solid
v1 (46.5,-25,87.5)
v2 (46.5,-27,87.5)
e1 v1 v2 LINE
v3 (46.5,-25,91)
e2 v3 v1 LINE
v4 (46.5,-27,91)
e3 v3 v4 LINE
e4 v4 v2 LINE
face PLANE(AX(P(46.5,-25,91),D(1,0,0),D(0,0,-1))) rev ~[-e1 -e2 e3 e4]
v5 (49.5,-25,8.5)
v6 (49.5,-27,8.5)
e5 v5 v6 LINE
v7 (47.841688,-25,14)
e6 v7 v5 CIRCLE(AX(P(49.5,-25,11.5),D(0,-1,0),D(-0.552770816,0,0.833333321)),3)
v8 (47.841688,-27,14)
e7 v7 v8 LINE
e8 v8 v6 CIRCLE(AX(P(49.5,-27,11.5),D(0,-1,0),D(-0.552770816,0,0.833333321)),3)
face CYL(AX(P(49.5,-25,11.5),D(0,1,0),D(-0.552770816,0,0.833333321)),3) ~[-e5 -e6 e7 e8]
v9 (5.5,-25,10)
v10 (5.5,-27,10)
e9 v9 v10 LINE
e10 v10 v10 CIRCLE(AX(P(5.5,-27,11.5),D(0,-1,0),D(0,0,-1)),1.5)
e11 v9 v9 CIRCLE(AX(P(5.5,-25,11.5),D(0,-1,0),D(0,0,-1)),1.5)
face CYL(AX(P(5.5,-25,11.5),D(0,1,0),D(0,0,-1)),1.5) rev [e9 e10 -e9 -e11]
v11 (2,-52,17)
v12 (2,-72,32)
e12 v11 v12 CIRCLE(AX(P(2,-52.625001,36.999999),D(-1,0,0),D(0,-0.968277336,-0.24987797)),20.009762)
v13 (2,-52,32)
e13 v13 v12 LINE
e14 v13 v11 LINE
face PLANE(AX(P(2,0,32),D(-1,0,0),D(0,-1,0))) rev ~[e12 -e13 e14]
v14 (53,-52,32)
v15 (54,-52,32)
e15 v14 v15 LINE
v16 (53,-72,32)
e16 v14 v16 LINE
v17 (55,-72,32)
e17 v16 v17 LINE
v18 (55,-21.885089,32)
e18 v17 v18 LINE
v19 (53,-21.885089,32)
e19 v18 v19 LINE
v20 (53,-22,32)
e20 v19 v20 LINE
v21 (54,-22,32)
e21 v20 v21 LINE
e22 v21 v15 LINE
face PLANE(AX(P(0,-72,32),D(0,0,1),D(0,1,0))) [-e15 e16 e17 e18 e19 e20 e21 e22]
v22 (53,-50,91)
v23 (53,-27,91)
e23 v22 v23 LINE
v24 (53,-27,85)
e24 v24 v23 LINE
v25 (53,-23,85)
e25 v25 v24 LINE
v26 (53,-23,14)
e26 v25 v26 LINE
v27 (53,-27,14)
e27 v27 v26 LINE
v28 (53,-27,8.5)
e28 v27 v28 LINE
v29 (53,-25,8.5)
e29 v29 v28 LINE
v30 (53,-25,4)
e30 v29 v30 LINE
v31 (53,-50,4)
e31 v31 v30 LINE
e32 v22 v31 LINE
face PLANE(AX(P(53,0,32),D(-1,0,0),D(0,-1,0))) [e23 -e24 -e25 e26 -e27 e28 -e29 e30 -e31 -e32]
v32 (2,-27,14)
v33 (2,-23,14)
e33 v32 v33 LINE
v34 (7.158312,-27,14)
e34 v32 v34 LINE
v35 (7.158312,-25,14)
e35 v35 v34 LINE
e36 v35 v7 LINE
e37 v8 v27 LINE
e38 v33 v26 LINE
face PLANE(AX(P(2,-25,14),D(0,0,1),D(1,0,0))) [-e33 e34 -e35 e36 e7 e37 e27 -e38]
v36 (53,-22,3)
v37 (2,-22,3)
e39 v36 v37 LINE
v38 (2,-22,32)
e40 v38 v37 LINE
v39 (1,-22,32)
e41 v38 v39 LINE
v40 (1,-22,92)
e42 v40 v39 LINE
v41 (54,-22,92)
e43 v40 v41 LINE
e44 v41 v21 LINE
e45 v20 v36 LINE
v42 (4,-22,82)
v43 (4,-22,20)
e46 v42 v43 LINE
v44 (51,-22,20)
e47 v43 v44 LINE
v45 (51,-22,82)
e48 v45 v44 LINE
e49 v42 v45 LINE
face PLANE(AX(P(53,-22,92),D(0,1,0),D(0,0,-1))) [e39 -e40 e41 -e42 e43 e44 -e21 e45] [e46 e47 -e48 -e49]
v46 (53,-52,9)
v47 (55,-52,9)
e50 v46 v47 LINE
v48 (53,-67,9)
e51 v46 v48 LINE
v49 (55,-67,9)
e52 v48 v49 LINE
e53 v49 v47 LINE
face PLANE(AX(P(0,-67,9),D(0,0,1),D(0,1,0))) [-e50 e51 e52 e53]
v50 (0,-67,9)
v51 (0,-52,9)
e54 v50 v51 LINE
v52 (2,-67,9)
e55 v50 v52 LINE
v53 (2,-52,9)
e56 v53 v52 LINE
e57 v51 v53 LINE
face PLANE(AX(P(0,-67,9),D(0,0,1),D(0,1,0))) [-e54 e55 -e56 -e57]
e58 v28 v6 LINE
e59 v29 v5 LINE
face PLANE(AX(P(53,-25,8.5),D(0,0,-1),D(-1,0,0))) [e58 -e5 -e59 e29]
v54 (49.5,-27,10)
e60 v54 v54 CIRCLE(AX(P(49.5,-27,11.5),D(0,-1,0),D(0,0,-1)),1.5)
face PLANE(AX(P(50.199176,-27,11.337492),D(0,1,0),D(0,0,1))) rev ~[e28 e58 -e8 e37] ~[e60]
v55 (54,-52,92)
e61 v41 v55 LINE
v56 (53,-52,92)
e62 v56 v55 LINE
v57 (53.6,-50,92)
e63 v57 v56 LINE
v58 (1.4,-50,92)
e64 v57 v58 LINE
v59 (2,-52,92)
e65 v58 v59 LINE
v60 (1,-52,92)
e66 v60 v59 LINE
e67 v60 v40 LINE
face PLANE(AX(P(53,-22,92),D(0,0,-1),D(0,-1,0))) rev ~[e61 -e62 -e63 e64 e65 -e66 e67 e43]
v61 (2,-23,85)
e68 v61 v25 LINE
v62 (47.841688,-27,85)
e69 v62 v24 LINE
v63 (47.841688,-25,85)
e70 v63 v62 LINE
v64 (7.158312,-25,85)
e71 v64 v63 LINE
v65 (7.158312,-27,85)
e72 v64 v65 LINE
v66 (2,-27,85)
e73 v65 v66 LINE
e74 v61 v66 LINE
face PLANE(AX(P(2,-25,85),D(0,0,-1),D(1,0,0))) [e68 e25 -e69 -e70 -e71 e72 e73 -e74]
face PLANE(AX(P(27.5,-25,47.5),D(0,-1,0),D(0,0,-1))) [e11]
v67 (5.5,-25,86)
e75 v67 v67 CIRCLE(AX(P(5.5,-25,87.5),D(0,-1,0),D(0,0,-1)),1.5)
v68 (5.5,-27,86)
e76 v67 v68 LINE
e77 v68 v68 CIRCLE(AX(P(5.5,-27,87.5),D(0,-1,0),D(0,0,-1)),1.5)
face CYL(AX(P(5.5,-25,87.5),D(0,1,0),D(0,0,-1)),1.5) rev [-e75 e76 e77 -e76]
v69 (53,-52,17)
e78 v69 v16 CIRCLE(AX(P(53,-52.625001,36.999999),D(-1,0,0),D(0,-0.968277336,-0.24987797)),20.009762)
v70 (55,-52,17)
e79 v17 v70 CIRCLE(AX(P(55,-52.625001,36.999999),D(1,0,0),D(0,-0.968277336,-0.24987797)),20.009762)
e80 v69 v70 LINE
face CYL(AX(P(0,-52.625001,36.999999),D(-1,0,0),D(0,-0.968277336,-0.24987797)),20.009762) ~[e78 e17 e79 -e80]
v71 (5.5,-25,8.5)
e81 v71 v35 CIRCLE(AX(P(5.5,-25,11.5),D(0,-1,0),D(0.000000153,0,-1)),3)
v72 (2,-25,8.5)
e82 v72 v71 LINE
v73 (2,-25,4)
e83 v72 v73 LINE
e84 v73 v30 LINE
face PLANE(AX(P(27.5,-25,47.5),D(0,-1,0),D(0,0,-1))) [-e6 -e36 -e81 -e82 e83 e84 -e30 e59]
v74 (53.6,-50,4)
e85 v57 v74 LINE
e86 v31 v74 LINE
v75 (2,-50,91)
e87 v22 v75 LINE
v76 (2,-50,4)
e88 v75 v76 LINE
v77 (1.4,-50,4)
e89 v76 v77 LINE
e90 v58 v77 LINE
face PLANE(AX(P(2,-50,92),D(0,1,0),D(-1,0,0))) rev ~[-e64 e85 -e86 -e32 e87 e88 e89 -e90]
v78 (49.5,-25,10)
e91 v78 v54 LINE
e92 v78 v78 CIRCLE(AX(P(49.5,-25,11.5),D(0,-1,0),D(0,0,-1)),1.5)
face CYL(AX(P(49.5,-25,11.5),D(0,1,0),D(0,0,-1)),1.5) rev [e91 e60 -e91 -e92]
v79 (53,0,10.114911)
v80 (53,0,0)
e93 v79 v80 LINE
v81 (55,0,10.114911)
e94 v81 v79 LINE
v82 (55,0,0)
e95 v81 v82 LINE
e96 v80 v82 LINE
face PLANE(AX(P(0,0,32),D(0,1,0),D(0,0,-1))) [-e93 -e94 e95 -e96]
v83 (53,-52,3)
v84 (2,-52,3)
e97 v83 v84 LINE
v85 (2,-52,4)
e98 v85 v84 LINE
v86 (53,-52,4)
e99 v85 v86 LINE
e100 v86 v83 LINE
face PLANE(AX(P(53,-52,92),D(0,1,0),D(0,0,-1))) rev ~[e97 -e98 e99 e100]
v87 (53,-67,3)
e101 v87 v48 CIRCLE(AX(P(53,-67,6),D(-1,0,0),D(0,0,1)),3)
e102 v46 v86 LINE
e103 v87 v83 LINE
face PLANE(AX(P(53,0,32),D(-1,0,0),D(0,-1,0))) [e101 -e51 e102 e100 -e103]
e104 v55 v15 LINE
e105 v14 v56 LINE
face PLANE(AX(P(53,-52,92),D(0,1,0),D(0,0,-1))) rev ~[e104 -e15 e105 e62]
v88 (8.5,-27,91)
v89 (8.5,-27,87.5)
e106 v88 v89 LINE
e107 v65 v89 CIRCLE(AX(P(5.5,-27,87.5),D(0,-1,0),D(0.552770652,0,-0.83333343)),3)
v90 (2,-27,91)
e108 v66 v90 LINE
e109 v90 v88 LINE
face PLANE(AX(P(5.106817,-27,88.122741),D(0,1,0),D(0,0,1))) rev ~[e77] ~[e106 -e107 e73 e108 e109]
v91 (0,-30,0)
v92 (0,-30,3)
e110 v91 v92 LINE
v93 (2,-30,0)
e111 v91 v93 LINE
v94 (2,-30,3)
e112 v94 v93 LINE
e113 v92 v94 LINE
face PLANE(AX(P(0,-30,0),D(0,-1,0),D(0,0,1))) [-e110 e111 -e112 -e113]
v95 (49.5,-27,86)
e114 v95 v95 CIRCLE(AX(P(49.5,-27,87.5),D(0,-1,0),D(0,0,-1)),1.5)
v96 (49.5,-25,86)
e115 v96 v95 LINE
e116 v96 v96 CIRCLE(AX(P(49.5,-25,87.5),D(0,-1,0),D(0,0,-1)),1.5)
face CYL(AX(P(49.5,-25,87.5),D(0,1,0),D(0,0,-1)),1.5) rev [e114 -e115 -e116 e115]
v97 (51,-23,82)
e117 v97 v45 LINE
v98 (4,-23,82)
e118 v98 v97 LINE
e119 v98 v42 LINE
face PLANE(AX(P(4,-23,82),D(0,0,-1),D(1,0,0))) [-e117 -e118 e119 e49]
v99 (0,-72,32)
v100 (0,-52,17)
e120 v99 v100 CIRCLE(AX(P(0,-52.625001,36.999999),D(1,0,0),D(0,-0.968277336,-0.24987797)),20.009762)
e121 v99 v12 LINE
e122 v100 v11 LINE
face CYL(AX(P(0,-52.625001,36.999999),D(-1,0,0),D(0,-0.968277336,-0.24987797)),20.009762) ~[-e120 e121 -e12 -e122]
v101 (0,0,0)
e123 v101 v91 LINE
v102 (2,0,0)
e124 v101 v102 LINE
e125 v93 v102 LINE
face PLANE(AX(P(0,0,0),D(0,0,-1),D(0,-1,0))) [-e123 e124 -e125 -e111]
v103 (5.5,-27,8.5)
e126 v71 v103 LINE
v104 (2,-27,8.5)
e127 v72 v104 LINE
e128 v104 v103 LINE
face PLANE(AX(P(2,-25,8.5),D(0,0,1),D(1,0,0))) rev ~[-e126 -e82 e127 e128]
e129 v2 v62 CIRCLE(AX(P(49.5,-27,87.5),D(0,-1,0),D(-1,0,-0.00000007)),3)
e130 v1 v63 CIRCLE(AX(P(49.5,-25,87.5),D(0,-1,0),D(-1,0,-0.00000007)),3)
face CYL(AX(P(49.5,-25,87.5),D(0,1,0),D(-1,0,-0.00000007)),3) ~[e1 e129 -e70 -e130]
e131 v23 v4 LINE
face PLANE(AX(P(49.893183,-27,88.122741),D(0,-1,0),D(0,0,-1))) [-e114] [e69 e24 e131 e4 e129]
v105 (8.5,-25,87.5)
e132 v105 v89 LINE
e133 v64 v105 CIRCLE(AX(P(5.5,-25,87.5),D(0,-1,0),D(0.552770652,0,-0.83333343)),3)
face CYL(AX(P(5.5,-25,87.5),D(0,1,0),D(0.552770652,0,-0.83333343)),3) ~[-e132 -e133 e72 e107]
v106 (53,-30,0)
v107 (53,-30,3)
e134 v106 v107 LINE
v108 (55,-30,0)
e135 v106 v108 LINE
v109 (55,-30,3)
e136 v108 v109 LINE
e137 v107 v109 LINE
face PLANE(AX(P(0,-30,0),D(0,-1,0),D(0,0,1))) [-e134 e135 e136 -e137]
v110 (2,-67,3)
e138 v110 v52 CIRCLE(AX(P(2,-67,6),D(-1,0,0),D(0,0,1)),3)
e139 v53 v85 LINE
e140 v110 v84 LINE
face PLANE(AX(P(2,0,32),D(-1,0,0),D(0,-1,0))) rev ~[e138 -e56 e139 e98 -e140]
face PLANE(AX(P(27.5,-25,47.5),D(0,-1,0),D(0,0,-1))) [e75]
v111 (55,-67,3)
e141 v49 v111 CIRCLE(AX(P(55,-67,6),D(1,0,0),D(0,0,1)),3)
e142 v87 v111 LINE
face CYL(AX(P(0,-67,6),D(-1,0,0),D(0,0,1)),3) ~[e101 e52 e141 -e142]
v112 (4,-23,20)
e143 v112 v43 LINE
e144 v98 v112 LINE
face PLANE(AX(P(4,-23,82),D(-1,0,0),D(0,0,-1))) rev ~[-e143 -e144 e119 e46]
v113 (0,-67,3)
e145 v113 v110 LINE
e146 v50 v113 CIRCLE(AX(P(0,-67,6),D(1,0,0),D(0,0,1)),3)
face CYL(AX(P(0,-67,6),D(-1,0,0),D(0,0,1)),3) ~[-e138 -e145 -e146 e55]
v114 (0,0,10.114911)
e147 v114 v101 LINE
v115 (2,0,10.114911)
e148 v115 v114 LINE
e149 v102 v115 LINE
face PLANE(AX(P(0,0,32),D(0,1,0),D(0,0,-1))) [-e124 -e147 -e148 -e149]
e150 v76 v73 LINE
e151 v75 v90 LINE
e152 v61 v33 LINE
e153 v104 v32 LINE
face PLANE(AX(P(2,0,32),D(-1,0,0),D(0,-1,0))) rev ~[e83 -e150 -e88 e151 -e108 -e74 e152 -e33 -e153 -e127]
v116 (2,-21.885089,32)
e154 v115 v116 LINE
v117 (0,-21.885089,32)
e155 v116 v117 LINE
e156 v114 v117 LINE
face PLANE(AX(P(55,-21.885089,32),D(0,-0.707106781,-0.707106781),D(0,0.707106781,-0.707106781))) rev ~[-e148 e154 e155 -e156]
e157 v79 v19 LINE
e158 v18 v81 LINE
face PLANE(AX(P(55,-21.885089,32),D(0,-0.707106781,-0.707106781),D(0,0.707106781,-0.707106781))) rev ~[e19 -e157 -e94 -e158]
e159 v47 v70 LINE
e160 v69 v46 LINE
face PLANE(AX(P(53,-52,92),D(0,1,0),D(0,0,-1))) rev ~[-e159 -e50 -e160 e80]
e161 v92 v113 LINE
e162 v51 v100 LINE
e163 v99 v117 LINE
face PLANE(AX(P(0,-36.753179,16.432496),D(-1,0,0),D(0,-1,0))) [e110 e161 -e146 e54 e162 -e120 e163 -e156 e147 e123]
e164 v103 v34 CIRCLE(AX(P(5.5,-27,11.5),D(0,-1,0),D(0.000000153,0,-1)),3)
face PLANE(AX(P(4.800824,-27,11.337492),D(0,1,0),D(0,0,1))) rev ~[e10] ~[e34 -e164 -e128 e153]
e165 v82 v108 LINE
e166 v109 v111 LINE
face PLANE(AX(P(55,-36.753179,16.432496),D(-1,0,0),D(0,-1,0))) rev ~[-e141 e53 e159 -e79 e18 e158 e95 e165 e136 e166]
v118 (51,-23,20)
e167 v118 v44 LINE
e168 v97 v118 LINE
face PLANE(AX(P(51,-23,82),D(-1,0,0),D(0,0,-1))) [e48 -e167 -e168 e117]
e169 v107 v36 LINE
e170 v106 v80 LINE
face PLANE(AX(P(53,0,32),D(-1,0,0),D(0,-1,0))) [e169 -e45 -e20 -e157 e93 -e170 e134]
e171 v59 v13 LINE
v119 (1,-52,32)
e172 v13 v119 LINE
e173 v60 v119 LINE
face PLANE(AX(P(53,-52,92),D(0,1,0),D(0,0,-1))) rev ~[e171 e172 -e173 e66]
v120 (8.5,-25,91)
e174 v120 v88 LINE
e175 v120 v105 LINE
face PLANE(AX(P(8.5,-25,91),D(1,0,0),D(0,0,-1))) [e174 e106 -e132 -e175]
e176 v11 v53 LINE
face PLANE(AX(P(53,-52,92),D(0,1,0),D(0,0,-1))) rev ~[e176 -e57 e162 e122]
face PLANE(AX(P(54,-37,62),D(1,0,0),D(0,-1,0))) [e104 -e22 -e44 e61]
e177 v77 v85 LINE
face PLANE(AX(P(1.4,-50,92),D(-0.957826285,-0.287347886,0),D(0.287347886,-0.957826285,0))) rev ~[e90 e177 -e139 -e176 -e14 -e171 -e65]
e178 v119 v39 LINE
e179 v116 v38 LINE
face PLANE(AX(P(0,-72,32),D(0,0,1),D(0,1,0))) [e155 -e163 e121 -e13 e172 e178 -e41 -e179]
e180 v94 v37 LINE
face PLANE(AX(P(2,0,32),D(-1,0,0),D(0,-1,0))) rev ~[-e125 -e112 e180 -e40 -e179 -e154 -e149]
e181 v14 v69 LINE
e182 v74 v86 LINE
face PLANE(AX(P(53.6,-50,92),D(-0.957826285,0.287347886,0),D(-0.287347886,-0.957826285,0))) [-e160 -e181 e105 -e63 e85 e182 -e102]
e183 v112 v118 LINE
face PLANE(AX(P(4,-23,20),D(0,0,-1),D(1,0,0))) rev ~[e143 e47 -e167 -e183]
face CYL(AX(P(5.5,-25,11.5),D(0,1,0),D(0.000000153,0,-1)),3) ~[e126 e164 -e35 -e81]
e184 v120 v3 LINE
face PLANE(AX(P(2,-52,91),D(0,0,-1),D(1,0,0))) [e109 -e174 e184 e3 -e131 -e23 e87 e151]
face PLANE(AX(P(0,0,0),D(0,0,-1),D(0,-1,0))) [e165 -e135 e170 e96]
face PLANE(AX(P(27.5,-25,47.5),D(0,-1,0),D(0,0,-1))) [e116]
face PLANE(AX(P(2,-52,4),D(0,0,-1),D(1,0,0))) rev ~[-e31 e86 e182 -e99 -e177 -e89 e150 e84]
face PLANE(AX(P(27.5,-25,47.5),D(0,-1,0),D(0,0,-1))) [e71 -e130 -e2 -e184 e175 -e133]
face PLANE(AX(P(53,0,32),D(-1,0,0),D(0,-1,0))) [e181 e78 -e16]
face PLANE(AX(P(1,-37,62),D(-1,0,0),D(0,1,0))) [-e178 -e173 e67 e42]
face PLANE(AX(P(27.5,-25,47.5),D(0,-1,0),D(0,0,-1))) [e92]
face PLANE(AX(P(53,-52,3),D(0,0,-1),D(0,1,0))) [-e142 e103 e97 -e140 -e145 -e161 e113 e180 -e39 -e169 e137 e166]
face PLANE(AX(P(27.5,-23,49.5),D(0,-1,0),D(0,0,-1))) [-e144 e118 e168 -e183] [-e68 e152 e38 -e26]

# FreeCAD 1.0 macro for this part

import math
import FreeCAD as App
import Part
import Sketcher
Q = App.Units.Quantity


def add_polygon(sketch, points):
    """Adds a closed chain of lines whose ends are joined by coincident constraints."""
    first, n = sketch.GeometryCount, len(points)
    for a, b in zip(points, points[1:] + points[:1]):
        sketch.addGeometry(Part.LineSegment(App.Vector(*a, 0), App.Vector(*b, 0)), False)
    for i in range(n):
        sketch.addConstraint(Sketcher.Constraint("Coincident", first + i, 2, first + (i + 1) % n, 1))

doc = App.newDocument("Part")
params = doc.addObject("Spreadsheet::Sheet", "Params")
for row, (alias, value) in enumerate([
    ("sketch1_radius", "3 mm"),
    ("sketch1_width", "30 mm"),
    ("sketch1_width2", "72 mm"),
    ("sketch1_width3", "15 mm"),
    ("sketch1_width4", "37 mm"),
    ("pad1_length", "55 mm"),
    ("sketch2_width", "51 mm"),
    ("sketch2_height", "72 mm"),
    ("pocket1_length", "30 mm"),
    ("sketch3_width", "30 mm"),
    ("sketch3_height", "89 mm"),
    ("pad2_length", "51 mm"),
    ("sketch4_width", "30 mm"),
    ("sketch4_height", "60 mm"),
    ("pad3_length", "1 mm"),
    ("sketch5_width", "30 mm"),
    ("sketch5_height", "60 mm"),
    ("pad4_length", "1 mm"),
    ("sketch6_width", "51 mm"),
    ("sketch6_height", "87 mm"),
    ("pocket2_length", "27 mm"),
    ("sketch7_width", "51 mm"),
    ("sketch7_height", "71 mm"),
    ("pocket3_length", "2 mm"),
    ("sketch8_width", "47 mm"),
    ("sketch8_height", "62 mm"),
    ("pocket4_length", "1 mm"),
    ("sketch9_diameter", "3 mm"),
    ("sketch9_radius", "3 mm"),
    ("sketch9_height", "6 mm"),
    ("sketch9_width", "3.5 mm"),
    ("pad5_length", "2 mm"),
    ("sketch10_width", "22 mm"),
    ("sketch11_width", "51 mm"),
    ("sketch11_height", "30 mm"),
    ("pocket6_length", "2 mm"),
    ("sketch12_width", "51 mm"),
    ("sketch12_height", "1 mm"),
    ("pocket7_length", "2 mm"),
    ("sketch13_height", "2 mm"),
    ("sketch13_width", "0.6 mm"),
    ("pocket8_length", "88 mm"),
], start=1):
    params.set(f"A{row}", alias)
    params.set(f"B{row}", "=" + value)
    params.setAlias(f"B{row}", alias)

body = doc.addObject("PartDesign::Body", "Body")

# Sketch on YZ plane
sketch1 = doc.addObject("Sketcher::SketchObject", "Sketch")
body.addObject(sketch1)
sketch1.AttachmentSupport = (doc.YZ_Plane, [""])
sketch1.MapMode = "FlatFace"
sketch1.addGeometry(Part.LineSegment(App.Vector(-30, 0, 0), App.Vector(0, 0, 0)), False)
sketch1.addGeometry(Part.LineSegment(App.Vector(0, 0, 0), App.Vector(0, 32, 0)), False)
sketch1.addGeometry(Part.LineSegment(App.Vector(0, 32, 0), App.Vector(-72, 32, 0)), False)
sketch1.addGeometry(Part.ArcOfCircle(Part.Circle(App.Vector(-52.6, 37, 0), App.Vector(0, 0, 1), 20), math.radians(-166), math.radians(-88)), False)
sketch1.addGeometry(Part.LineSegment(App.Vector(-52, 17, 0), App.Vector(-52, 9, 0)), False)
sketch1.addGeometry(Part.LineSegment(App.Vector(-52, 9, 0), App.Vector(-67, 9, 0)), False)
sketch1.addGeometry(Part.ArcOfCircle(Part.Circle(App.Vector(-67, 6, 0), App.Vector(0, 0, 1), 3), math.radians(90), math.radians(270)), False)
sketch1.addGeometry(Part.LineSegment(App.Vector(-67, 3, 0), App.Vector(-30, 3, 0)), False)
sketch1.addGeometry(Part.LineSegment(App.Vector(-30, 3, 0), App.Vector(-30, 0, 0)), False)
sketch1.addConstraint(Sketcher.Constraint("Coincident", 0, 2, 1, 1))
sketch1.addConstraint(Sketcher.Constraint("Coincident", 1, 2, 2, 1))
sketch1.addConstraint(Sketcher.Constraint("Coincident", 2, 2, 3, 1))
sketch1.addConstraint(Sketcher.Constraint("Coincident", 3, 2, 4, 1))
sketch1.addConstraint(Sketcher.Constraint("Coincident", 4, 2, 5, 1))
sketch1.addConstraint(Sketcher.Constraint("Tangent", 5, 2, 6, 1))
sketch1.addConstraint(Sketcher.Constraint("Tangent", 6, 2, 7, 1))
sketch1.addConstraint(Sketcher.Constraint("Coincident", 7, 2, 8, 1))
sketch1.addConstraint(Sketcher.Constraint("Coincident", 8, 2, 0, 1))
sketch1.addConstraint(Sketcher.Constraint("Horizontal", 0))
sketch1.addConstraint(Sketcher.Constraint("Vertical", 1))
sketch1.addConstraint(Sketcher.Constraint("Horizontal", 2))
sketch1.addConstraint(Sketcher.Constraint("Vertical", 4))
sketch1.addConstraint(Sketcher.Constraint("Horizontal", 5))
sketch1.addConstraint(Sketcher.Constraint("Horizontal", 7))
sketch1.addConstraint(Sketcher.Constraint("Vertical", 8))
sketch1.addConstraint(Sketcher.Constraint("Coincident", 0, 2, -1, 1))
sketch1.addConstraint(Sketcher.Constraint("Radius", 6, Q("3 mm")))
sketch1.addConstraint(Sketcher.Constraint("DistanceX", 0, 1, 0, 2, Q("30 mm")))
sketch1.addConstraint(Sketcher.Constraint("DistanceX", 2, 2, 2, 1, Q("72 mm")))
sketch1.addConstraint(Sketcher.Constraint("DistanceX", 5, 2, 5, 1, Q("15 mm")))
sketch1.addConstraint(Sketcher.Constraint("DistanceX", 7, 1, 7, 2, Q("37 mm")))
sketch1.addConstraint(Sketcher.Constraint("DistanceY", 1, 1, 1, 2, Q("32 mm")))
sketch1.addConstraint(Sketcher.Constraint("DistanceY", 4, 2, 4, 1, Q("8 mm")))
sketch1.addConstraint(Sketcher.Constraint("DistanceY", 8, 2, 8, 1, Q("3 mm")))
sketch1.addConstraint(Sketcher.Constraint("DistanceY", -1, 1, 3, 3, Q("36.999999 mm")))
sketch1.setExpression("Constraints[17]", "Params.sketch1_radius")
sketch1.setExpression("Constraints[18]", "Params.sketch1_width")
sketch1.setExpression("Constraints[19]", "Params.sketch1_width2")
sketch1.setExpression("Constraints[20]", "Params.sketch1_width3")
sketch1.setExpression("Constraints[21]", "Params.sketch1_width4")
pad1 = doc.addObject("PartDesign::Pad", "Pad")
body.addObject(pad1)
pad1.Profile = sketch1
pad1.setExpression("Length", "Params.pad1_length")

# Sketch on XY plane
sketch2 = doc.addObject("Sketcher::SketchObject", "Sketch001")
body.addObject(sketch2)
sketch2.AttachmentSupport = (doc.XY_Plane, [""])
sketch2.MapMode = "FlatFace"
sketch2.AttachmentOffset = App.Placement(App.Vector(0, 0, 32), App.Rotation())
add_polygon(sketch2, [(53, 0), (2, 0), (2, -72), (53, -72)])  # lines 0-3
sketch2.addConstraint(Sketcher.Constraint("Horizontal", 0))
sketch2.addConstraint(Sketcher.Constraint("Vertical", 1))
sketch2.addConstraint(Sketcher.Constraint("Horizontal", 2))
sketch2.addConstraint(Sketcher.Constraint("Vertical", 3))
sketch2.addConstraint(Sketcher.Constraint("PointOnObject", 0, 2, -1))
sketch2.addConstraint(Sketcher.Constraint("DistanceX", 0, 2, 0, 1, Q("51 mm")))
sketch2.addConstraint(Sketcher.Constraint("DistanceY", 1, 2, 1, 1, Q("72 mm")))
sketch2.addConstraint(Sketcher.Constraint("DistanceX", -1, 1, 0, 2, Q("2 mm")))
sketch2.setExpression("Constraints[9]", "Params.sketch2_width")
sketch2.setExpression("Constraints[10]", "Params.sketch2_height")
pocket1 = doc.addObject("PartDesign::Pocket", "Pocket")
body.addObject(pocket1)
pocket1.Profile = sketch2
pocket1.setExpression("Length", "Params.pocket1_length")

# Sketch on YZ plane
sketch3 = doc.addObject("Sketcher::SketchObject", "Sketch002")
body.addObject(sketch3)
sketch3.AttachmentSupport = (doc.YZ_Plane, [""])
sketch3.MapMode = "FlatFace"
sketch3.AttachmentOffset = App.Placement(App.Vector(0, 0, 53), App.Rotation())
add_polygon(sketch3, [(-52, 3), (-52, 92), (-22, 92), (-22, 3)])  # lines 0-3
sketch3.addConstraint(Sketcher.Constraint("Vertical", 0))
sketch3.addConstraint(Sketcher.Constraint("Horizontal", 1))
sketch3.addConstraint(Sketcher.Constraint("Vertical", 2))
sketch3.addConstraint(Sketcher.Constraint("Horizontal", 3))
sketch3.addConstraint(Sketcher.Constraint("DistanceX", 1, 1, 1, 2, Q("30 mm")))
sketch3.addConstraint(Sketcher.Constraint("DistanceY", 0, 1, 0, 2, Q("89 mm")))
sketch3.addConstraint(Sketcher.Constraint("DistanceX", 0, 2, -1, 1, Q("52 mm")))
sketch3.addConstraint(Sketcher.Constraint("DistanceY", -1, 1, 0, 2, Q("92 mm")))
sketch3.setExpression("Constraints[8]", "Params.sketch3_width")
sketch3.setExpression("Constraints[9]", "Params.sketch3_height")
pad2 = doc.addObject("PartDesign::Pad", "Pad001")
body.addObject(pad2)
pad2.Profile = sketch3
pad2.setExpression("Length", "Params.pad2_length")
pad2.Reversed = True

# Sketch on YZ plane
sketch4 = doc.addObject("Sketcher::SketchObject", "Sketch003")
body.addObject(sketch4)
sketch4.AttachmentSupport = (doc.YZ_Plane, [""])
sketch4.MapMode = "FlatFace"
sketch4.AttachmentOffset = App.Placement(App.Vector(0, 0, 2), App.Rotation())
add_polygon(sketch4, [(-52, 32), (-52, 92), (-22, 92), (-22, 32)])  # lines 0-3
sketch4.addConstraint(Sketcher.Constraint("Vertical", 0))
sketch4.addConstraint(Sketcher.Constraint("Horizontal", 1))
sketch4.addConstraint(Sketcher.Constraint("Vertical", 2))
sketch4.addConstraint(Sketcher.Constraint("Horizontal", 3))
sketch4.addConstraint(Sketcher.Constraint("DistanceX", 1, 1, 1, 2, Q("30 mm")))
sketch4.addConstraint(Sketcher.Constraint("DistanceY", 0, 1, 0, 2, Q("60 mm")))
sketch4.addConstraint(Sketcher.Constraint("DistanceX", 0, 2, -1, 1, Q("52 mm")))
sketch4.addConstraint(Sketcher.Constraint("DistanceY", -1, 1, 0, 2, Q("92 mm")))
sketch4.setExpression("Constraints[8]", "Params.sketch4_width")
sketch4.setExpression("Constraints[9]", "Params.sketch4_height")
pad3 = doc.addObject("PartDesign::Pad", "Pad002")
body.addObject(pad3)
pad3.Profile = sketch4
pad3.setExpression("Length", "Params.pad3_length")
pad3.Reversed = True

# Sketch on YZ plane
sketch5 = doc.addObject("Sketcher::SketchObject", "Sketch004")
body.addObject(sketch5)
sketch5.AttachmentSupport = (doc.YZ_Plane, [""])
sketch5.MapMode = "FlatFace"
sketch5.AttachmentOffset = App.Placement(App.Vector(0, 0, 53), App.Rotation())
add_polygon(sketch5, [(-22, 32), (-22, 92), (-52, 92), (-52, 32)])  # lines 0-3
sketch5.addConstraint(Sketcher.Constraint("Vertical", 0))
sketch5.addConstraint(Sketcher.Constraint("Horizontal", 1))
sketch5.addConstraint(Sketcher.Constraint("Vertical", 2))
sketch5.addConstraint(Sketcher.Constraint("Horizontal", 3))
sketch5.addConstraint(Sketcher.Constraint("DistanceX", 1, 2, 1, 1, Q("30 mm")))
sketch5.addConstraint(Sketcher.Constraint("DistanceY", 0, 1, 0, 2, Q("60 mm")))
sketch5.addConstraint(Sketcher.Constraint("DistanceX", 0, 2, -1, 1, Q("22 mm")))
sketch5.addConstraint(Sketcher.Constraint("DistanceY", -1, 1, 0, 2, Q("92 mm")))
sketch5.setExpression("Constraints[8]", "Params.sketch5_width")
sketch5.setExpression("Constraints[9]", "Params.sketch5_height")
pad4 = doc.addObject("PartDesign::Pad", "Pad003")
body.addObject(pad4)
pad4.Profile = sketch5
pad4.setExpression("Length", "Params.pad4_length")

# Sketch on XZ plane
sketch6 = doc.addObject("Sketcher::SketchObject", "Sketch005")
body.addObject(sketch6)
sketch6.AttachmentSupport = (doc.XZ_Plane, [""])
sketch6.MapMode = "FlatFace"
sketch6.AttachmentOffset = App.Placement(App.Vector(0, 0, 52), App.Rotation())
add_polygon(sketch6, [(53, 91), (2, 91), (2, 4), (53, 4)])  # lines 0-3
sketch6.addConstraint(Sketcher.Constraint("Horizontal", 0))
sketch6.addConstraint(Sketcher.Constraint("Vertical", 1))
sketch6.addConstraint(Sketcher.Constraint("Horizontal", 2))
sketch6.addConstraint(Sketcher.Constraint("Vertical", 3))
sketch6.addConstraint(Sketcher.Constraint("DistanceX", 0, 2, 0, 1, Q("51 mm")))
sketch6.addConstraint(Sketcher.Constraint("DistanceY", 1, 2, 1, 1, Q("87 mm")))
sketch6.addConstraint(Sketcher.Constraint("DistanceX", -1, 1, 0, 2, Q("2 mm")))
sketch6.addConstraint(Sketcher.Constraint("DistanceY", -1, 1, 0, 2, Q("91 mm")))
sketch6.setExpression("Constraints[8]", "Params.sketch6_width")
sketch6.setExpression("Constraints[9]", "Params.sketch6_height")
pocket2 = doc.addObject("PartDesign::Pocket", "Pocket001")
body.addObject(pocket2)
pocket2.Profile = sketch6
pocket2.setExpression("Length", "Params.pocket2_length")

# Sketch on XZ plane
sketch7 = doc.addObject("Sketcher::SketchObject", "Sketch006")
body.addObject(sketch7)
sketch7.AttachmentSupport = (doc.XZ_Plane, [""])
sketch7.MapMode = "FlatFace"
sketch7.AttachmentOffset = App.Placement(App.Vector(0, 0, 25), App.Rotation())
add_polygon(sketch7, [(53, 85), (2, 85), (2, 14), (53, 14)])  # lines 0-3
sketch7.addConstraint(Sketcher.Constraint("Horizontal", 0))
sketch7.addConstraint(Sketcher.Constraint("Vertical", 1))
sketch7.addConstraint(Sketcher.Constraint("Horizontal", 2))
sketch7.addConstraint(Sketcher.Constraint("Vertical", 3))
sketch7.addConstraint(Sketcher.Constraint("DistanceX", 0, 2, 0, 1, Q("51 mm")))
sketch7.addConstraint(Sketcher.Constraint("DistanceY", 1, 2, 1, 1, Q("71 mm")))
sketch7.addConstraint(Sketcher.Constraint("DistanceX", -1, 1, 0, 2, Q("2 mm")))
sketch7.addConstraint(Sketcher.Constraint("DistanceY", -1, 1, 0, 2, Q("85 mm")))
sketch7.setExpression("Constraints[8]", "Params.sketch7_width")
sketch7.setExpression("Constraints[9]", "Params.sketch7_height")
pocket3 = doc.addObject("PartDesign::Pocket", "Pocket002")
body.addObject(pocket3)
pocket3.Profile = sketch7
pocket3.setExpression("Length", "Params.pocket3_length")

# Sketch on XZ plane
sketch8 = doc.addObject("Sketcher::SketchObject", "Sketch007")
body.addObject(sketch8)
sketch8.AttachmentSupport = (doc.XZ_Plane, [""])
sketch8.MapMode = "FlatFace"
sketch8.AttachmentOffset = App.Placement(App.Vector(0, 0, 23), App.Rotation())
add_polygon(sketch8, [(51, 82), (4, 82), (4, 20), (51, 20)])  # lines 0-3
sketch8.addConstraint(Sketcher.Constraint("Horizontal", 0))
sketch8.addConstraint(Sketcher.Constraint("Vertical", 1))
sketch8.addConstraint(Sketcher.Constraint("Horizontal", 2))
sketch8.addConstraint(Sketcher.Constraint("Vertical", 3))
sketch8.addConstraint(Sketcher.Constraint("DistanceX", 0, 2, 0, 1, Q("47 mm")))
sketch8.addConstraint(Sketcher.Constraint("DistanceY", 1, 2, 1, 1, Q("62 mm")))
sketch8.addConstraint(Sketcher.Constraint("DistanceX", -1, 1, 0, 2, Q("4 mm")))
sketch8.addConstraint(Sketcher.Constraint("DistanceY", -1, 1, 0, 2, Q("82 mm")))
sketch8.setExpression("Constraints[8]", "Params.sketch8_width")
sketch8.setExpression("Constraints[9]", "Params.sketch8_height")
pocket4 = doc.addObject("PartDesign::Pocket", "Pocket003")
body.addObject(pocket4)
pocket4.Profile = sketch8
pocket4.setExpression("Length", "Params.pocket4_length")

# Sketch on XZ plane
sketch9 = doc.addObject("Sketcher::SketchObject", "Sketch008")
body.addObject(sketch9)
sketch9.AttachmentSupport = (doc.XZ_Plane, [""])
sketch9.MapMode = "FlatFace"
sketch9.AttachmentOffset = App.Placement(App.Vector(0, 0, 25), App.Rotation())
sketch9.addGeometry(Part.LineSegment(App.Vector(2, 14, 0), App.Vector(2, 8.5, 0)), False)
sketch9.addGeometry(Part.LineSegment(App.Vector(2, 8.5, 0), App.Vector(5.5, 8.5, 0)), False)
sketch9.addGeometry(Part.ArcOfCircle(Part.Circle(App.Vector(5.5, 11.5, 0), App.Vector(0, 0, 1), 3), math.radians(-90), math.radians(56)), False)
sketch9.addGeometry(Part.LineSegment(App.Vector(7.2, 14, 0), App.Vector(2, 14, 0)), False)
sketch9.addGeometry(Part.Circle(App.Vector(5.5, 11.5, 0), App.Vector(0, 0, 1), 1.5), False)
sketch9.addGeometry(Part.LineSegment(App.Vector(53, 14, 0), App.Vector(47.8, 14, 0)), False)
sketch9.addGeometry(Part.ArcOfCircle(Part.Circle(App.Vector(49.5, 11.5, 0), App.Vector(0, 0, 1), 3), math.radians(124), math.radians(270)), False)
sketch9.addGeometry(Part.LineSegment(App.Vector(49.5, 8.5, 0), App.Vector(53, 8.5, 0)), False)
sketch9.addGeometry(Part.LineSegment(App.Vector(53, 8.5, 0), App.Vector(53, 14, 0)), False)
sketch9.addGeometry(Part.Circle(App.Vector(49.5, 11.5, 0), App.Vector(0, 0, 1), 1.5), False)
sketch9.addGeometry(Part.LineSegment(App.Vector(2, 85, 0), App.Vector(7.2, 85, 0)), False)
sketch9.addGeometry(Part.ArcOfCircle(Part.Circle(App.Vector(5.5, 87.5, 0), App.Vector(0, 0, 1), 3), math.radians(-56), math.radians(0)), False)
sketch9.addGeometry(Part.LineSegment(App.Vector(8.5, 87.5, 0), App.Vector(8.5, 91, 0)), False)
sketch9.addGeometry(Part.LineSegment(App.Vector(8.5, 91, 0), App.Vector(2, 91, 0)), False)
sketch9.addGeometry(Part.LineSegment(App.Vector(2, 91, 0), App.Vector(2, 85, 0)), False)
sketch9.addGeometry(Part.Circle(App.Vector(5.5, 87.5, 0), App.Vector(0, 0, 1), 1.5), False)
sketch9.addGeometry(Part.LineSegment(App.Vector(47.8, 85, 0), App.Vector(53, 85, 0)), False)
sketch9.addGeometry(Part.LineSegment(App.Vector(53, 85, 0), App.Vector(53, 91, 0)), False)
sketch9.addGeometry(Part.LineSegment(App.Vector(53, 91, 0), App.Vector(46.5, 91, 0)), False)
sketch9.addGeometry(Part.LineSegment(App.Vector(46.5, 91, 0), App.Vector(46.5, 87.5, 0)), False)
sketch9.addGeometry(Part.ArcOfCircle(Part.Circle(App.Vector(49.5, 87.5, 0), App.Vector(0, 0, 1), 3), math.radians(-180), math.radians(-124)), False)
sketch9.addGeometry(Part.Circle(App.Vector(49.5, 87.5, 0), App.Vector(0, 0, 1), 1.5), False)
sketch9.addConstraint(Sketcher.Constraint("Coincident", 0, 2, 1, 1))
sketch9.addConstraint(Sketcher.Constraint("Tangent", 1, 2, 2, 1))
sketch9.addConstraint(Sketcher.Constraint("Coincident", 2, 2, 3, 1))
sketch9.addConstraint(Sketcher.Constraint("Coincident", 3, 2, 0, 1))
sketch9.addConstraint(Sketcher.Constraint("Coincident", 5, 2, 6, 1))
sketch9.addConstraint(Sketcher.Constraint("Tangent", 6, 2, 7, 1))
sketch9.addConstraint(Sketcher.Constraint("Coincident", 7, 2, 8, 1))
sketch9.addConstraint(Sketcher.Constraint("Coincident", 8, 2, 5, 1))
sketch9.addConstraint(Sketcher.Constraint("Coincident", 10, 2, 11, 1))
sketch9.addConstraint(Sketcher.Constraint("Tangent", 11, 2, 12, 1))
sketch9.addConstraint(Sketcher.Constraint("Coincident", 12, 2, 13, 1))
sketch9.addConstraint(Sketcher.Constraint("Coincident", 13, 2, 14, 1))
sketch9.addConstraint(Sketcher.Constraint("Coincident", 14, 2, 10, 1))
sketch9.addConstraint(Sketcher.Constraint("Coincident", 16, 2, 17, 1))
sketch9.addConstraint(Sketcher.Constraint("Coincident", 17, 2, 18, 1))
sketch9.addConstraint(Sketcher.Constraint("Coincident", 18, 2, 19, 1))
sketch9.addConstraint(Sketcher.Constraint("Tangent", 19, 2, 20, 1))
sketch9.addConstraint(Sketcher.Constraint("Coincident", 20, 2, 16, 1))
sketch9.addConstraint(Sketcher.Constraint("Vertical", 0))
sketch9.addConstraint(Sketcher.Constraint("Horizontal", 1))
sketch9.addConstraint(Sketcher.Constraint("Horizontal", 3))
sketch9.addConstraint(Sketcher.Constraint("Horizontal", 5))
sketch9.addConstraint(Sketcher.Constraint("Horizontal", 7))
sketch9.addConstraint(Sketcher.Constraint("Vertical", 8))
sketch9.addConstraint(Sketcher.Constraint("Horizontal", 10))
sketch9.addConstraint(Sketcher.Constraint("Vertical", 12))
sketch9.addConstraint(Sketcher.Constraint("Horizontal", 13))
sketch9.addConstraint(Sketcher.Constraint("Vertical", 14))
sketch9.addConstraint(Sketcher.Constraint("Horizontal", 16))
sketch9.addConstraint(Sketcher.Constraint("Vertical", 17))
sketch9.addConstraint(Sketcher.Constraint("Horizontal", 18))
sketch9.addConstraint(Sketcher.Constraint("Vertical", 19))
sketch9.addConstraint(Sketcher.Constraint("Coincident", 4, 3, 2, 3))
sketch9.addConstraint(Sketcher.Constraint("Coincident", 9, 3, 6, 3))
sketch9.addConstraint(Sketcher.Constraint("Coincident", 15, 3, 11, 3))
sketch9.addConstraint(Sketcher.Constraint("Coincident", 21, 3, 20, 3))
sketch9.addConstraint(Sketcher.Constraint("Equal", 2, 6))
sketch9.addConstraint(Sketcher.Constraint("Equal", 4, 9))
sketch9.addConstraint(Sketcher.Constraint("Equal", 6, 11))
sketch9.addConstraint(Sketcher.Constraint("Equal", 9, 15))
sketch9.addConstraint(Sketcher.Constraint("Equal", 11, 20))
sketch9.addConstraint(Sketcher.Constraint("Equal", 15, 21))
sketch9.addConstraint(Sketcher.Constraint("Horizontal", 4, 3, 6, 3))
sketch9.addConstraint(Sketcher.Constraint("Horizontal", 15, 3, 20, 3))
sketch9.addConstraint(Sketcher.Constraint("Horizontal", 3, 2, 5, 2))
sketch9.addConstraint(Sketcher.Constraint("Horizontal", 14, 2, 16, 2))
sketch9.addConstraint(Sketcher.Constraint("Horizontal", 13, 2, 17, 2))
sketch9.addConstraint(Sketcher.Constraint("Vertical", 4, 3, 11, 3))
sketch9.addConstraint(Sketcher.Constraint("Vertical", 9, 3, 20, 3))
sketch9.addConstraint(Sketcher.Constraint("Vertical", 2, 2, 10, 2))
sketch9.addConstraint(Sketcher.Constraint("Vertical", 3, 2, 13, 2))
sketch9.addConstraint(Sketcher.Constraint("Vertical", 8, 2, 16, 2))
sketch9.addConstraint(Sketcher.Constraint("Equal", 3, 5))
sketch9.addConstraint(Sketcher.Constraint("Equal", 7, 12))
sketch9.addConstraint(Sketcher.Constraint("Diameter", 4, Q("3 mm")))
sketch9.addConstraint(Sketcher.Constraint("Radius", 2, Q("3 mm")))
sketch9.addConstraint(Sketcher.Constraint("DistanceY", 14, 2, 14, 1, Q("6 mm")))
sketch9.addConstraint(Sketcher.Constraint("DistanceX", 1, 1, 1, 2, Q("3.5 mm")))
sketch9.addConstraint(Sketcher.Constraint("DistanceX", -1, 1, 0, 2, Q("2 mm")))
sketch9.addConstraint(Sketcher.Constraint("DistanceY", -1, 1, 2, 2, Q("14 mm")))
sketch9.addConstraint(Sketcher.Constraint("DistanceX", -1, 1, 7, 2, Q("53 mm")))
sketch9.addConstraint(Sketcher.Constraint("DistanceY", -1, 1, 10, 2, Q("85 mm")))
sketch9.setExpression("Constraints[54]", "Params.sketch9_diameter")
sketch9.setExpression("Constraints[55]", "Params.sketch9_radius")
sketch9.setExpression("Constraints[56]", "Params.sketch9_height")
sketch9.setExpression("Constraints[57]", "Params.sketch9_width")
pad5 = doc.addObject("PartDesign::Pad", "Pad004")
body.addObject(pad5)
pad5.Profile = sketch9
pad5.setExpression("Length", "Params.pad5_length")

# Sketch on YZ plane
sketch10 = doc.addObject("Sketcher::SketchObject", "Sketch009")
body.addObject(sketch10)
sketch10.AttachmentSupport = (doc.YZ_Plane, [""])
sketch10.MapMode = "FlatFace"
sketch10.AttachmentOffset = App.Placement(App.Vector(0, 0, 55), App.Rotation())
add_polygon(sketch10, [(0, 10), (0, 32), (-22, 32)])  # lines 0-2
sketch10.addConstraint(Sketcher.Constraint("Vertical", 0))
sketch10.addConstraint(Sketcher.Constraint("Horizontal", 1))
sketch10.addConstraint(Sketcher.Constraint("Equal", 1, 0))
sketch10.addConstraint(Sketcher.Constraint("DistanceX", 1, 2, 1, 1, Q("22 mm")))
sketch10.addConstraint(Sketcher.Constraint("DistanceY", -1, 1, 0, 2, Q("32 mm")))
sketch10.addConstraint(Sketcher.Constraint("DistanceX", -1, 1, 0, 2, Q("0.114911 mm")))
sketch10.setExpression("Constraints[6]", "Params.sketch10_width")
pocket5 = doc.addObject("PartDesign::Pocket", "Pocket004")
body.addObject(pocket5)
pocket5.Profile = sketch10
pocket5.Type = "ThroughAll"

# Sketch on XY plane
sketch11 = doc.addObject("Sketcher::SketchObject", "Sketch010")
body.addObject(sketch11)
sketch11.AttachmentSupport = (doc.XY_Plane, [""])
sketch11.MapMode = "FlatFace"
add_polygon(sketch11, [(53, -30), (2, -30), (2, 0), (53, 0)])  # lines 0-3
sketch11.addConstraint(Sketcher.Constraint("Horizontal", 0))
sketch11.addConstraint(Sketcher.Constraint("Vertical", 1))
sketch11.addConstraint(Sketcher.Constraint("Horizontal", 2))
sketch11.addConstraint(Sketcher.Constraint("Vertical", 3))
sketch11.addConstraint(Sketcher.Constraint("PointOnObject", 1, 2, -1))
sketch11.addConstraint(Sketcher.Constraint("DistanceX", 0, 2, 0, 1, Q("51 mm")))
sketch11.addConstraint(Sketcher.Constraint("DistanceY", 1, 1, 1, 2, Q("30 mm")))
sketch11.addConstraint(Sketcher.Constraint("DistanceX", -1, 1, 0, 2, Q("2 mm")))
sketch11.setExpression("Constraints[9]", "Params.sketch11_width")
sketch11.setExpression("Constraints[10]", "Params.sketch11_height")
pocket6 = doc.addObject("PartDesign::Pocket", "Pocket005")
body.addObject(pocket6)
pocket6.Profile = sketch11
pocket6.setExpression("Length", "Params.pocket6_length")
pocket6.Reversed = True

# Sketch on XZ plane
sketch12 = doc.addObject("Sketcher::SketchObject", "Sketch011")
body.addObject(sketch12)
sketch12.AttachmentSupport = (doc.XZ_Plane, [""])
sketch12.MapMode = "FlatFace"
sketch12.AttachmentOffset = App.Placement(App.Vector(0, 0, 52), App.Rotation())
add_polygon(sketch12, [(53, 91), (53, 92), (2, 92), (2, 91)])  # lines 0-3
sketch12.addConstraint(Sketcher.Constraint("Vertical", 0))
sketch12.addConstraint(Sketcher.Constraint("Horizontal", 1))
sketch12.addConstraint(Sketcher.Constraint("Vertical", 2))
sketch12.addConstraint(Sketcher.Constraint("Horizontal", 3))
sketch12.addConstraint(Sketcher.Constraint("DistanceX", 1, 2, 1, 1, Q("51 mm")))
sketch12.addConstraint(Sketcher.Constraint("DistanceY", 0, 1, 0, 2, Q("1 mm")))
sketch12.addConstraint(Sketcher.Constraint("DistanceX", -1, 1, 0, 2, Q("53 mm")))
sketch12.addConstraint(Sketcher.Constraint("DistanceY", -1, 1, 0, 2, Q("92 mm")))
sketch12.setExpression("Constraints[8]", "Params.sketch12_width")
sketch12.setExpression("Constraints[9]", "Params.sketch12_height")
pocket7 = doc.addObject("PartDesign::Pocket", "Pocket006")
body.addObject(pocket7)
pocket7.Profile = sketch12
pocket7.setExpression("Length", "Params.pocket7_length")

# Sketch on XY plane
sketch13 = doc.addObject("Sketcher::SketchObject", "Sketch012")
body.addObject(sketch13)
sketch13.AttachmentSupport = (doc.XY_Plane, [""])
sketch13.MapMode = "FlatFace"
sketch13.AttachmentOffset = App.Placement(App.Vector(0, 0, 92), App.Rotation())
add_polygon(sketch13, [(53, -50), (53, -52), (53.6, -50)])  # lines 0-2
add_polygon(sketch13, [(2, -52), (2, -50), (1.4, -50)])  # lines 3-5
sketch13.addConstraint(Sketcher.Constraint("Vertical", 0))
sketch13.addConstraint(Sketcher.Constraint("Horizontal", 2))
sketch13.addConstraint(Sketcher.Constraint("Vertical", 3))
sketch13.addConstraint(Sketcher.Constraint("Horizontal", 4))
sketch13.addConstraint(Sketcher.Constraint("Horizontal", 2, 2, 3, 2))
sketch13.addConstraint(Sketcher.Constraint("Horizontal", 0, 2, 5, 2))
sketch13.addConstraint(Sketcher.Constraint("Equal", 2, 4))
sketch13.addConstraint(Sketcher.Constraint("DistanceY", 0, 2, 0, 1, Q("2 mm")))
sketch13.addConstraint(Sketcher.Constraint("DistanceX", 2, 2, 2, 1, Q("0.6 mm")))
sketch13.addConstraint(Sketcher.Constraint("DistanceX", -1, 1, 0, 2, Q("53 mm")))
sketch13.addConstraint(Sketcher.Constraint("DistanceY", 0, 2, -1, 1, Q("52 mm")))
sketch13.addConstraint(Sketcher.Constraint("DistanceX", -1, 1, 3, 2, Q("2 mm")))
sketch13.setExpression("Constraints[13]", "Params.sketch13_height")
sketch13.setExpression("Constraints[14]", "Params.sketch13_width")
pocket8 = doc.addObject("PartDesign::Pocket", "Pocket007")
body.addObject(pocket8)
pocket8.Profile = sketch13
pocket8.setExpression("Length", "Params.pocket8_length")

doc.recompute()
